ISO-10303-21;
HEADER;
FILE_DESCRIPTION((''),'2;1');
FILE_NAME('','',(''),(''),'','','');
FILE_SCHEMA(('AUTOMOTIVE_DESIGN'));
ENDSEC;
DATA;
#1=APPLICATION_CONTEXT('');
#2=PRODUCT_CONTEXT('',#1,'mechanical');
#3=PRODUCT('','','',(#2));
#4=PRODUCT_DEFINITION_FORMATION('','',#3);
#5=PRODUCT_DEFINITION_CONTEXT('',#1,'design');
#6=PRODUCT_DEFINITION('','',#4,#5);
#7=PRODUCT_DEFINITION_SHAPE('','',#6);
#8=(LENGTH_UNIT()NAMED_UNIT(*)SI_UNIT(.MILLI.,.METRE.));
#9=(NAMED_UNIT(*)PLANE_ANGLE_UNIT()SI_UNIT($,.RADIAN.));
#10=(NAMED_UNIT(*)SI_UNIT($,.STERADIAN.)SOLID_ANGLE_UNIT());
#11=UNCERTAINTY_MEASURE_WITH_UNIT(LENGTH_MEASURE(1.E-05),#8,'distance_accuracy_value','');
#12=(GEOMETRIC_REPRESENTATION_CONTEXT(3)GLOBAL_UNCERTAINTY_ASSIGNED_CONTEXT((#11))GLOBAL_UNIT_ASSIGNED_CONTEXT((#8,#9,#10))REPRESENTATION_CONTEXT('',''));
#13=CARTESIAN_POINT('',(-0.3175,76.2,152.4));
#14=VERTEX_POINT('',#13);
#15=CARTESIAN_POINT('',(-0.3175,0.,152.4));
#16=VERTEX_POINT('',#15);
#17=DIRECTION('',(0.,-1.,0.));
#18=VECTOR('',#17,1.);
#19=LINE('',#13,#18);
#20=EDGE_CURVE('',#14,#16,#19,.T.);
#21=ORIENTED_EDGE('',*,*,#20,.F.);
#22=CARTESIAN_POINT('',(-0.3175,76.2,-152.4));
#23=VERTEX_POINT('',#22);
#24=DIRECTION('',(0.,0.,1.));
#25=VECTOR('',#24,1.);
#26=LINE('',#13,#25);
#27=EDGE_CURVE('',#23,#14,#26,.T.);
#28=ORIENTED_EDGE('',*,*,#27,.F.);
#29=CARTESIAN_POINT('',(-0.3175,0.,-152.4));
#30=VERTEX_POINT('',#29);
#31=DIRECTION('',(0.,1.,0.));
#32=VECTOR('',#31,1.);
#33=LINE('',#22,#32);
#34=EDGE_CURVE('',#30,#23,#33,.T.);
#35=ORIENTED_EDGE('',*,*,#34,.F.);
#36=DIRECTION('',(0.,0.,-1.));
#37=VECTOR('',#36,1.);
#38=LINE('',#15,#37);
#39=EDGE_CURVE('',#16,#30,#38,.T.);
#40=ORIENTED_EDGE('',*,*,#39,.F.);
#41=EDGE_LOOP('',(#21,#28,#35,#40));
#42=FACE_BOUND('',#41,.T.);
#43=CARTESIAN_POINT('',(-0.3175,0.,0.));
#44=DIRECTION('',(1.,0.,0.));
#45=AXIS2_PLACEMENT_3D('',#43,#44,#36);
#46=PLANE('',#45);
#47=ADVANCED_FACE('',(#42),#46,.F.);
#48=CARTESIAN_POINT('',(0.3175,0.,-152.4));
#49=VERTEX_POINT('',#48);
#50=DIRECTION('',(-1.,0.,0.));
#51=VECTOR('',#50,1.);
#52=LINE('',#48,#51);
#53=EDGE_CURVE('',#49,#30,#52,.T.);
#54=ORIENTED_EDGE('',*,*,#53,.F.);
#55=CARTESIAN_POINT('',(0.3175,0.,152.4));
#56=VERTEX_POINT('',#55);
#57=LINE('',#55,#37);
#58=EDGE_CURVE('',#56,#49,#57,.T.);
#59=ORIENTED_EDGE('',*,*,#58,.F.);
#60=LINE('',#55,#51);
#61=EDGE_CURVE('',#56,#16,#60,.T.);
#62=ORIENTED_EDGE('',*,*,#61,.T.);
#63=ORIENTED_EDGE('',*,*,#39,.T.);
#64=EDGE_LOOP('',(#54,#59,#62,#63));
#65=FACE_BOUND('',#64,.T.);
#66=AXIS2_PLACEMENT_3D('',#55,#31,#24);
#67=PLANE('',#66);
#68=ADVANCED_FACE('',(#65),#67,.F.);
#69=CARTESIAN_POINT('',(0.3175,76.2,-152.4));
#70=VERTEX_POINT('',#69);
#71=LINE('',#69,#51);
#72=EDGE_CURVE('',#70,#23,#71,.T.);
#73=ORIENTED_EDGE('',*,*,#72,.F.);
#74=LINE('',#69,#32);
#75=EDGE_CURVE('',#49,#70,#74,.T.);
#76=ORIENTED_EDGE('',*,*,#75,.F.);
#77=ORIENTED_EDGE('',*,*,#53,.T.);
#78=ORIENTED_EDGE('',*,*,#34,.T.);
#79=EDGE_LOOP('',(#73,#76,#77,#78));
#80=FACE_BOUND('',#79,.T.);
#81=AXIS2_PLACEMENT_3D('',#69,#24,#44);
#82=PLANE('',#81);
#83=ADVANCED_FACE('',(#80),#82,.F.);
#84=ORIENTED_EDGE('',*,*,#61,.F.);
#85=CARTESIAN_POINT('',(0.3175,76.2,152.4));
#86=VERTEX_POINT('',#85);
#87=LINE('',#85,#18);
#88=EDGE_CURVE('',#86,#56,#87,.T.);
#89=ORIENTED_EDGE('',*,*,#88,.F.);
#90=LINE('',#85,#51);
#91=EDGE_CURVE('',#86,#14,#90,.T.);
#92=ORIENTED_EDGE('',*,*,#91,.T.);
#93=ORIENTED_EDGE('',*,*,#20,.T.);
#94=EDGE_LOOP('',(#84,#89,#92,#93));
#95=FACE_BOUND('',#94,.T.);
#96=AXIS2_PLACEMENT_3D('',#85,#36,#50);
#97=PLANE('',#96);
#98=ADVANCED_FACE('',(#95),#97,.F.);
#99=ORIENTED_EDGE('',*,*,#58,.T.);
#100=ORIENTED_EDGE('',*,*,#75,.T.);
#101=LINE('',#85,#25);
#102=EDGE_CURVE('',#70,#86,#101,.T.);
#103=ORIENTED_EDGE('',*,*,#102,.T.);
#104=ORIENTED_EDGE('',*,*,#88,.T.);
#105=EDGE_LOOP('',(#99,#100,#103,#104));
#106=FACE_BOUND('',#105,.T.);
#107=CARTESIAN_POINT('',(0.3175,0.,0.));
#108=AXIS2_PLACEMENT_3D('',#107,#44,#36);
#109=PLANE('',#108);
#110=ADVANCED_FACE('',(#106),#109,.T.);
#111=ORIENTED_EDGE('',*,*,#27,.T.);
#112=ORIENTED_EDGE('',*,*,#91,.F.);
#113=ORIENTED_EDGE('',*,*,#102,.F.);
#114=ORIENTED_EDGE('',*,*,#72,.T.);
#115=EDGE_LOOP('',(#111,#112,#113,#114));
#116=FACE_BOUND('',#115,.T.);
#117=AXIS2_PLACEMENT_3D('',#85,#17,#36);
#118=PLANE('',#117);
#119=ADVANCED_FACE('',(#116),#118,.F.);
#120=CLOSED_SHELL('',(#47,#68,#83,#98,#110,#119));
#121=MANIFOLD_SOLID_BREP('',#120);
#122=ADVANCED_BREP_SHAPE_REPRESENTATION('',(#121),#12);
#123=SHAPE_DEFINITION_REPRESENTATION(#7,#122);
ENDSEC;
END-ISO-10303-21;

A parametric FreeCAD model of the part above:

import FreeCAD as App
import Part
import Sketcher
from FreeCAD import Vector
Q = App.Units.Quantity


def add_polygon(sketch, points):
    """Adds a closed chain of lines whose ends are joined by coincident constraints."""
    first, n = sketch.GeometryCount, len(points)
    for a, b in zip(points, points[1:] + points[:1]):
        sketch.addGeometry(Part.LineSegment(App.Vector(*a, 0), App.Vector(*b, 0)), False)
    for i in range(n):
        sketch.addConstraint(Sketcher.Constraint("Coincident", first + i, 2, first + (i + 1) % n, 1))

doc = App.newDocument("Part")
params = doc.addObject("Spreadsheet::Sheet", "Params")
for row, (alias, value) in enumerate([
    ("sketch1_width", "3 in"),
    ("sketch1_height", "12 in"),
    ("pad1_length", "0.025 in"),
], start=1):
    params.set(f"A{row}", alias)
    params.set(f"B{row}", "=" + value)
    params.setAlias(f"B{row}", alias)

body = doc.addObject("PartDesign::Body", "Body")

# Sketch on YZ plane
sketch1 = body.newObject("Sketcher::SketchObject", "Sketch")
sketch1.AttachmentSupport = (doc.getObject("YZ_Plane"), [""])
sketch1.MapMode = "FlatFace"
add_polygon(sketch1, [(76.2, 152.4), (0, 152.4), (0, -152.4), (76.2, -152.4)])  # lines 0-3
sketch1.addConstraint([
    Sketcher.Constraint("Horizontal", 0),
    Sketcher.Constraint("Vertical", 1),
    Sketcher.Constraint("Horizontal", 2),
    Sketcher.Constraint("Vertical", 3),
    Sketcher.Constraint("Symmetric", 0, 2, 1, 2, -1, 1),
    Sketcher.Constraint("DistanceX", 0, 2, 0, 1, Q("3 in")),
    Sketcher.Constraint("DistanceY", 1, 2, 1, 1, Q("12 in")),
])
sketch1.setExpression("Constraints[9]", "Params.sketch1_width")
sketch1.setExpression("Constraints[10]", "Params.sketch1_height")
pad1 = body.newObject("PartDesign::Pad", "Pad")
pad1.Profile = sketch1
pad1.setExpression("Length", "Params.pad1_length")
pad1.Midplane = True

doc.recompute()
